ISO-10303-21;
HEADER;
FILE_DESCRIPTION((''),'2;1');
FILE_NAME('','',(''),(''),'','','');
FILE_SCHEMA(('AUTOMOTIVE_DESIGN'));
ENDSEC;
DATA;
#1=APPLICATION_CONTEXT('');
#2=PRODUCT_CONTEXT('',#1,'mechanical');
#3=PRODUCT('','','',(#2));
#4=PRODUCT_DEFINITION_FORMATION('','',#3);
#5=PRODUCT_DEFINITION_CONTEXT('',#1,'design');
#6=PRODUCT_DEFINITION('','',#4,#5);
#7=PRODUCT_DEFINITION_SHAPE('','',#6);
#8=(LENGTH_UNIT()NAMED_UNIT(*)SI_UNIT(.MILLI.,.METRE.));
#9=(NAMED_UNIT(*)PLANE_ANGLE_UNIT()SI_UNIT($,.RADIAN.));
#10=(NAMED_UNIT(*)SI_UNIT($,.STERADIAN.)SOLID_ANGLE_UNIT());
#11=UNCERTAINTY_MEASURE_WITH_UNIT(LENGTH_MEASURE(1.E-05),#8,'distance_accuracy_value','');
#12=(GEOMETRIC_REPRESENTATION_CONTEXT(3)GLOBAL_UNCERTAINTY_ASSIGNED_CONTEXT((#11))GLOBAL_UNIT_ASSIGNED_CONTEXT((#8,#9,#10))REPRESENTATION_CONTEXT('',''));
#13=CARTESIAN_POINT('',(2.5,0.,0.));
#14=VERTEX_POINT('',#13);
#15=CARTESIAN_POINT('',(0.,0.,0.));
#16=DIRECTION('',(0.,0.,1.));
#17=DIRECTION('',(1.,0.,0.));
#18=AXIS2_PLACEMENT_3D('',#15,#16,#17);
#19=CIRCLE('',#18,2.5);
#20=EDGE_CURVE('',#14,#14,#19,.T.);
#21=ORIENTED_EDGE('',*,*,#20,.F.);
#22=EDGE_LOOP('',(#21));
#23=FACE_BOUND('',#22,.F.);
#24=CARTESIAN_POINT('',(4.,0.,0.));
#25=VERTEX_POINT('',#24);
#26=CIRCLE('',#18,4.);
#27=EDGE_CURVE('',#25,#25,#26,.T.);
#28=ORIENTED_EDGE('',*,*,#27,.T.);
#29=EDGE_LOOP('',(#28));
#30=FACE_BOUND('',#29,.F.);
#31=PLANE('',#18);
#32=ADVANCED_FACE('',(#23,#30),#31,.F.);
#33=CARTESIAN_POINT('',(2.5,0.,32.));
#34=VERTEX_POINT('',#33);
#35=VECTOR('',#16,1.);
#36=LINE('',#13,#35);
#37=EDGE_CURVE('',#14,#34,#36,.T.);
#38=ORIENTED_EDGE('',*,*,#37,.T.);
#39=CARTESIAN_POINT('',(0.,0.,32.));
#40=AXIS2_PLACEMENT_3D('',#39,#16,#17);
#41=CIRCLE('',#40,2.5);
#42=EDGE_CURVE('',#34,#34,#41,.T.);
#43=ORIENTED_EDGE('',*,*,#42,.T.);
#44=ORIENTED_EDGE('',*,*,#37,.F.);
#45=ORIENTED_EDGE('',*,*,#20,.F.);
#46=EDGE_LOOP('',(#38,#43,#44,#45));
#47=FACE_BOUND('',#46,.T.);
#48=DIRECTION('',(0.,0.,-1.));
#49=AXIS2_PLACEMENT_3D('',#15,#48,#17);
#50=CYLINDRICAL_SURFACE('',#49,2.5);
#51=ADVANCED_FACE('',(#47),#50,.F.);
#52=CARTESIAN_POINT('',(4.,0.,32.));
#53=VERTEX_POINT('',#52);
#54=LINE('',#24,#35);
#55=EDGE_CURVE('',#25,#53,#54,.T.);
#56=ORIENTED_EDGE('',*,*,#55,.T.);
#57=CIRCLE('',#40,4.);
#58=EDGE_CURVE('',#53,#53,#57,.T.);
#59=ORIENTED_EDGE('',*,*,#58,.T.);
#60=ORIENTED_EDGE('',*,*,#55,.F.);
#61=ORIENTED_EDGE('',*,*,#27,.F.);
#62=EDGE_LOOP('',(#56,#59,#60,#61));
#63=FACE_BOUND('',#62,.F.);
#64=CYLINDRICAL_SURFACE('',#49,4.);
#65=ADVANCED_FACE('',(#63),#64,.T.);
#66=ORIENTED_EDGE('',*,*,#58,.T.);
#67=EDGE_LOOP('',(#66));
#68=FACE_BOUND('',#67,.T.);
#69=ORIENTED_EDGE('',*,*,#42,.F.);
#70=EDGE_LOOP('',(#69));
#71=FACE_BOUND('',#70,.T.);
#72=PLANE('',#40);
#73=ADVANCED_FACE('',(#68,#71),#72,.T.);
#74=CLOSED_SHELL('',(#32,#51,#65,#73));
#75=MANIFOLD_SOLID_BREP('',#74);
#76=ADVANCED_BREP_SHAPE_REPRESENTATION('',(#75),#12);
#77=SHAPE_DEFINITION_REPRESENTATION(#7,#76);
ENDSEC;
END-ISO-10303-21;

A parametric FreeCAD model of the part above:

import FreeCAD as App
import Part
import Sketcher
from FreeCAD import Vector
Q = App.Units.Quantity

doc = App.newDocument("Part")
params = doc.addObject("Spreadsheet::Sheet", "Params")
for row, (alias, value) in enumerate([
    ("sketch1_diameter", "8 mm"),
    ("sketch1_diameter2", "5 mm"),
    ("pad1_length", "32 mm"),
], start=1):
    params.set(f"A{row}", alias)
    params.set(f"B{row}", "=" + value)
    params.setAlias(f"B{row}", alias)

body = doc.addObject("PartDesign::Body", "Body")

# Sketch on XY plane
sketch1 = body.newObject("Sketcher::SketchObject", "Sketch")
sketch1.AttachmentSupport = (doc.getObject("XY_Plane"), [""])
sketch1.MapMode = "FlatFace"
sketch1.addGeometry(Part.Circle(Vector(0, 0, 0), Vector(0, 0, 1), 4), False)
sketch1.addGeometry(Part.Circle(Vector(0, 0, 0), Vector(0, 0, 1), 2.5), False)
sketch1.addConstraint(Sketcher.Constraint("Coincident", 0, 3, -1, 1))
sketch1.addConstraint(Sketcher.Constraint("Coincident", 1, 3, -1, 1))
sketch1.addConstraint(Sketcher.Constraint("Diameter", 0, Q("8 mm")))
sketch1.addConstraint(Sketcher.Constraint("Diameter", 1, Q("5 mm")))
sketch1.setExpression("Constraints[2]", "Params.sketch1_diameter")
sketch1.setExpression("Constraints[3]", "Params.sketch1_diameter2")
pad1 = body.newObject("PartDesign::Pad", "Pad")
pad1.Profile = sketch1
pad1.setExpression("Length", "Params.pad1_length")

doc.recompute()
